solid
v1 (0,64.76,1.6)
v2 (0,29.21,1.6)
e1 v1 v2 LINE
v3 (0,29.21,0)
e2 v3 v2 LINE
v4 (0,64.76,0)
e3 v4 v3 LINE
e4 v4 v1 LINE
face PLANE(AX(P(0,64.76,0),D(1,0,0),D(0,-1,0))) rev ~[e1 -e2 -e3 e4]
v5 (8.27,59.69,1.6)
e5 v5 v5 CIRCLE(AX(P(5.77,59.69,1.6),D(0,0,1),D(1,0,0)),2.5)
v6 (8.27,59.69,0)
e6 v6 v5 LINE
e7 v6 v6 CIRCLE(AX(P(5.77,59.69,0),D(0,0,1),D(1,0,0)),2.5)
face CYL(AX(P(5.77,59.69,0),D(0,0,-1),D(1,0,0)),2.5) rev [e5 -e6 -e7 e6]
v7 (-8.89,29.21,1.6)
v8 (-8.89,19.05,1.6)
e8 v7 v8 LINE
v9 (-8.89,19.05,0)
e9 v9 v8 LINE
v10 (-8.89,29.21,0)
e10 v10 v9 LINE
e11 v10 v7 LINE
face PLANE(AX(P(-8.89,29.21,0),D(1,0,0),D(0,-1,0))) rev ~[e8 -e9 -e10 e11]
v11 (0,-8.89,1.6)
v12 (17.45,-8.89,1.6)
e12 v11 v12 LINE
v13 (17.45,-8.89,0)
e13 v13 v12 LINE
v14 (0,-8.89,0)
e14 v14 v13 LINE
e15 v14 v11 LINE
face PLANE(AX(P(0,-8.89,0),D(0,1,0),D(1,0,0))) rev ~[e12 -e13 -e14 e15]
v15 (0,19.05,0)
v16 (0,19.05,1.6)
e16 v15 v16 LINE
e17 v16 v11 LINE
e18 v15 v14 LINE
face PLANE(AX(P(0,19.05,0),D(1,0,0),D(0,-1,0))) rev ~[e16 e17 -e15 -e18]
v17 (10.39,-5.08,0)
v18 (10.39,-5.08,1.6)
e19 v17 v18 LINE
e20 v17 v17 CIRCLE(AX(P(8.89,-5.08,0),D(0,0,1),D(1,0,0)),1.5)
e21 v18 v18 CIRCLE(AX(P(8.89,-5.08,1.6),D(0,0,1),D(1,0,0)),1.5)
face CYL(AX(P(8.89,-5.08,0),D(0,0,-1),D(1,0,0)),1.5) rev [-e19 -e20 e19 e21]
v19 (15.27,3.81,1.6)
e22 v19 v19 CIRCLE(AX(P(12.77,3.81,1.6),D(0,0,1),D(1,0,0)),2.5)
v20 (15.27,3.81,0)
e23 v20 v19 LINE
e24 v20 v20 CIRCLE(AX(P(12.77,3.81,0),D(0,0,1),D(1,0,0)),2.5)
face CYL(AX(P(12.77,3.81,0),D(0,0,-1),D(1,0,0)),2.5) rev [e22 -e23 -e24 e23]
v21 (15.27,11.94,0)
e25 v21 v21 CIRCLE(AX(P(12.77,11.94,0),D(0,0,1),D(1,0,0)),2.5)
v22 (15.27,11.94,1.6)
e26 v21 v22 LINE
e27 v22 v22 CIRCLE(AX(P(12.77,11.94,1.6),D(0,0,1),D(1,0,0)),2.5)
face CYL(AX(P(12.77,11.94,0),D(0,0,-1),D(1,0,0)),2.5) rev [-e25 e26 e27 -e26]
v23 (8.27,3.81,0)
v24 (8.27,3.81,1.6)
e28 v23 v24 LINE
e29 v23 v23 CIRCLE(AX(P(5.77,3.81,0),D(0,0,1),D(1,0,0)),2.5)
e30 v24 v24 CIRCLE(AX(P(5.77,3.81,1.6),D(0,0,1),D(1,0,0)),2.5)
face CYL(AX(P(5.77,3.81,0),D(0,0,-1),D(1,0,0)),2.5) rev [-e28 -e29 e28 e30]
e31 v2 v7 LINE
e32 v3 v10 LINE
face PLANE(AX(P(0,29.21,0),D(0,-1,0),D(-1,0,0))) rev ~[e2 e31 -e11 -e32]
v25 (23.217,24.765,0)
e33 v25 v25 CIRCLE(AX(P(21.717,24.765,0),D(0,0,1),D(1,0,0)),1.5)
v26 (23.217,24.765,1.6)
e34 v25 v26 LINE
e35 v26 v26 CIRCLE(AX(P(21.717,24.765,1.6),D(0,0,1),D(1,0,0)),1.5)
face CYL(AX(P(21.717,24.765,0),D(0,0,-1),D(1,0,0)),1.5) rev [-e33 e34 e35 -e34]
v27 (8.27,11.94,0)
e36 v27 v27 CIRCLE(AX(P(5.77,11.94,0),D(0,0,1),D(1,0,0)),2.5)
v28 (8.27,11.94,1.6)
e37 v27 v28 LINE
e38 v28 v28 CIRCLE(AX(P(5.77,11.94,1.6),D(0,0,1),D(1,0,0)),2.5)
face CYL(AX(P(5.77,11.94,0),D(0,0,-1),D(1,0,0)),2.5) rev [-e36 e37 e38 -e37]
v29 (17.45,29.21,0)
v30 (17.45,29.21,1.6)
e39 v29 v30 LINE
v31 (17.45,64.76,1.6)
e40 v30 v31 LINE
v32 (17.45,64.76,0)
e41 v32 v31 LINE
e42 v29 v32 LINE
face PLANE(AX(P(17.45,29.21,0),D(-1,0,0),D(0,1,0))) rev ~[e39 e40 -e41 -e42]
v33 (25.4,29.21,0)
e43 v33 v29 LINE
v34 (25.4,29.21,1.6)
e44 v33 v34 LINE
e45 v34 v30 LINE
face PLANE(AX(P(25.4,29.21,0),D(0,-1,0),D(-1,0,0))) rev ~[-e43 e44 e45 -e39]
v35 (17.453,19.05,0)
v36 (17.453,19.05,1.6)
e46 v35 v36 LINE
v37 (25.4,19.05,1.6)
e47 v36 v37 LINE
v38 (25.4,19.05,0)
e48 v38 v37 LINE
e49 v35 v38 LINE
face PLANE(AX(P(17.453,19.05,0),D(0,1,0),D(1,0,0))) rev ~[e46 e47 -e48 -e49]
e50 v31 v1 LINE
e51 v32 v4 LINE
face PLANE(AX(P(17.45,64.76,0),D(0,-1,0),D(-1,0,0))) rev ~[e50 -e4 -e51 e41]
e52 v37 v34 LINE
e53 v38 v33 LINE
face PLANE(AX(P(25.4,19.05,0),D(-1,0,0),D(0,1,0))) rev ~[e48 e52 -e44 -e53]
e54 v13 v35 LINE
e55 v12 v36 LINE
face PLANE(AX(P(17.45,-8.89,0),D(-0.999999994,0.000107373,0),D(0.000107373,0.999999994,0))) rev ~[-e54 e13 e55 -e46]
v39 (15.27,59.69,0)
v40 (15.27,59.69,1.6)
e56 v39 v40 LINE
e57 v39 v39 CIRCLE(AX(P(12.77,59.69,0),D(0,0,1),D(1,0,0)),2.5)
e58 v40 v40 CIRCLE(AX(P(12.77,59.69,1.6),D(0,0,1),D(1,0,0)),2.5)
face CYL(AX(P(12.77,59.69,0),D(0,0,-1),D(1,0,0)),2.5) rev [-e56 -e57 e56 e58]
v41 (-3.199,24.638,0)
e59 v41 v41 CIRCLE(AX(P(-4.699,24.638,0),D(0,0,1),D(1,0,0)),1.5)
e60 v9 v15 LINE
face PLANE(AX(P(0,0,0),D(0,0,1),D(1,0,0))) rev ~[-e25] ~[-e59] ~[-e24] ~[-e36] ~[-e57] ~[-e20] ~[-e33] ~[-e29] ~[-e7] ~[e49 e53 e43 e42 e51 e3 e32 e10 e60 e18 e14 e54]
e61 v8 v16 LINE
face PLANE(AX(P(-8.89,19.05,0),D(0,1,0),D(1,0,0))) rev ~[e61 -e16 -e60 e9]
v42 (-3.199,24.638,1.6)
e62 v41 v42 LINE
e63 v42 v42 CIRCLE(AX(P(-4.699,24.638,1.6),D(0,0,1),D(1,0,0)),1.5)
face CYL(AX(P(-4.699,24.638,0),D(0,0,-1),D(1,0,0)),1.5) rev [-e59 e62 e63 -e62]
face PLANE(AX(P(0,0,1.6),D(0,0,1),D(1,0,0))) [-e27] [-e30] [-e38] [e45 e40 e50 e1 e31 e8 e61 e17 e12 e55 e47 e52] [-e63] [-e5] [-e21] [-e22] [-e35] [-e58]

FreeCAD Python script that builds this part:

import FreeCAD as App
import Part
import Sketcher
from FreeCAD import Vector
Q = App.Units.Quantity


def add_polygon(sketch, points):
    """Adds a closed chain of lines whose ends are joined by coincident constraints."""
    first, n = sketch.GeometryCount, len(points)
    for a, b in zip(points, points[1:] + points[:1]):
        sketch.addGeometry(Part.LineSegment(App.Vector(*a, 0), App.Vector(*b, 0)), False)
    for i in range(n):
        sketch.addConstraint(Sketcher.Constraint("Coincident", first + i, 2, first + (i + 1) % n, 1))

doc = App.newDocument("Part")
body = doc.addObject("PartDesign::Body", "Body")

# Sketch on XY plane
sketch1 = doc.addObject("Sketcher::SketchObject", "Sketch")
body.addObject(sketch1)
sketch1.AttachmentSupport = (doc.XY_Plane, [""])
sketch1.MapMode = "FlatFace"
add_polygon(sketch1, [(0, 19.1), (0, -8.9), (17.4, -8.9), (17.5, 19.1), (25.4, 19.1), (25.4, 29.2), (17.4, 29.2), (17.4, 64.8), (0, 64.8), (0, 29.2), (-8.9, 29.2), (-8.9, 19.1)])  # lines 0-11
sketch1.addGeometry(Part.Circle(Vector(5.8, 3.8, 0), Vector(0, 0, 1), 2.5), False)  # 12
sketch1.addGeometry(Part.Circle(Vector(-4.7, 24.6, 0), Vector(0, 0, 1), 1.5), False)  # 13
sketch1.addGeometry(Part.Circle(Vector(5.8, 11.9, 0), Vector(0, 0, 1), 2.5), False)  # 14
sketch1.addGeometry(Part.Circle(Vector(8.9, -5.1, 0), Vector(0, 0, 1), 1.5), False)  # 15
sketch1.addGeometry(Part.Circle(Vector(12.8, 3.8, 0), Vector(0, 0, 1), 2.5), False)  # 16
sketch1.addGeometry(Part.Circle(Vector(12.8, 11.9, 0), Vector(0, 0, 1), 2.5), False)  # 17
sketch1.addGeometry(Part.Circle(Vector(21.7, 24.8, 0), Vector(0, 0, 1), 1.5), False)  # 18
sketch1.addGeometry(Part.Circle(Vector(5.8, 59.7, 0), Vector(0, 0, 1), 2.5), False)  # 19
sketch1.addGeometry(Part.Circle(Vector(12.8, 59.7, 0), Vector(0, 0, 1), 2.5), False)  # 20
sketch1.addConstraint([
    Sketcher.Constraint("Vertical", 0),
    Sketcher.Constraint("Horizontal", 1),
    Sketcher.Constraint("Horizontal", 3),
    Sketcher.Constraint("Vertical", 4),
    Sketcher.Constraint("Horizontal", 5),
    Sketcher.Constraint("Vertical", 6),
    Sketcher.Constraint("Horizontal", 7),
    Sketcher.Constraint("Vertical", 8),
    Sketcher.Constraint("Horizontal", 9),
    Sketcher.Constraint("Vertical", 10),
    Sketcher.Constraint("Horizontal", 11),
    Sketcher.Constraint("Equal", 12, 14),
    Sketcher.Constraint("Equal", 13, 15),
    Sketcher.Constraint("Equal", 14, 16),
    Sketcher.Constraint("Equal", 16, 17),
    Sketcher.Constraint("Equal", 15, 18),
    Sketcher.Constraint("Equal", 17, 19),
    Sketcher.Constraint("Equal", 19, 20),
    Sketcher.Constraint("PointOnObject", 0, 2, -2),
    Sketcher.Constraint("PointOnObject", 7, 2, -2),
    Sketcher.Constraint("Horizontal", 12, 3, 16, 3),
    Sketcher.Constraint("Horizontal", 14, 3, 17, 3),
    Sketcher.Constraint("Horizontal", 19, 3, 20, 3),
    Sketcher.Constraint("Horizontal", 5, 2, 8, 2),
    Sketcher.Constraint("Horizontal", 3, 2, 10, 2),
    Sketcher.Constraint("Vertical", 12, 3, 14, 3),
    Sketcher.Constraint("Vertical", 16, 3, 17, 3),
    Sketcher.Constraint("Vertical", 14, 3, 19, 3),
    Sketcher.Constraint("Vertical", 17, 3, 20, 3),
    Sketcher.Constraint("Vertical", 1, 2, 5, 2),
    Sketcher.Constraint("DistanceY", 0, 2, 0, 1, Q("1.1 in")),
    Sketcher.Constraint("DistanceY", 4, 1, 4, 2, Q("0.4 in")),
    Sketcher.Constraint("DistanceX", -1, 1, 3, 2, Q("1 in")),
    Sketcher.Constraint("Diameter", 13, Q("0.1181 in")),
    Sketcher.Constraint("DistanceX", 9, 2, 9, 1, Q("0.35 in")),
    Sketcher.Constraint("DistanceY", 15, 3, -1, 1, Q("0.2 in")),
    Sketcher.Constraint("DistanceY", 12, 3, 19, 3, Q("2.2 in")),
    Sketcher.Constraint("DistanceY", 0, 2, 12, 3, Q("0.5 in")),
    Sketcher.Constraint("Diameter", 12, 5.0),
    Sketcher.Constraint("DistanceX", 1, 1, 1, 2, Q("0.687 in")),
    Sketcher.Constraint("DistanceY", -1, 1, 12, 3, Q("0.15 in")),
    Sketcher.Constraint("DistanceY", -1, 1, 13, 3, Q("0.97 in")),
    Sketcher.Constraint("DistanceX", -1, 1, 15, 3, Q("0.35 in")),
    Sketcher.Constraint("DistanceX", 13, 3, 18, 3, Q("1.04 in")),
    Sketcher.Constraint("DistanceY", 6, 1, 6, 2, Q("1.3996 in")),
    Sketcher.Constraint("DistanceX", 13, 3, -1, 1, Q("0.185 in")),
    Sketcher.Constraint("DistanceY", -1, 1, 18, 3, Q("0.975 in")),
    Sketcher.Constraint("DistanceX", 3, 1, 3, 2, 7.947),
    Sketcher.Constraint("DistanceX", 12, 3, 16, 3, Q("0.2756 in")),
    Sketcher.Constraint("DistanceX", -1, 1, 12, 3, 5.77),
    Sketcher.Constraint("DistanceY", -1, 1, 14, 3, 11.94),
])
pad1 = doc.addObject("PartDesign::Pad", "Pad")
body.addObject(pad1)
pad1.Profile = sketch1
pad1.Length = Q("0.0629921 in")

doc.recompute()
